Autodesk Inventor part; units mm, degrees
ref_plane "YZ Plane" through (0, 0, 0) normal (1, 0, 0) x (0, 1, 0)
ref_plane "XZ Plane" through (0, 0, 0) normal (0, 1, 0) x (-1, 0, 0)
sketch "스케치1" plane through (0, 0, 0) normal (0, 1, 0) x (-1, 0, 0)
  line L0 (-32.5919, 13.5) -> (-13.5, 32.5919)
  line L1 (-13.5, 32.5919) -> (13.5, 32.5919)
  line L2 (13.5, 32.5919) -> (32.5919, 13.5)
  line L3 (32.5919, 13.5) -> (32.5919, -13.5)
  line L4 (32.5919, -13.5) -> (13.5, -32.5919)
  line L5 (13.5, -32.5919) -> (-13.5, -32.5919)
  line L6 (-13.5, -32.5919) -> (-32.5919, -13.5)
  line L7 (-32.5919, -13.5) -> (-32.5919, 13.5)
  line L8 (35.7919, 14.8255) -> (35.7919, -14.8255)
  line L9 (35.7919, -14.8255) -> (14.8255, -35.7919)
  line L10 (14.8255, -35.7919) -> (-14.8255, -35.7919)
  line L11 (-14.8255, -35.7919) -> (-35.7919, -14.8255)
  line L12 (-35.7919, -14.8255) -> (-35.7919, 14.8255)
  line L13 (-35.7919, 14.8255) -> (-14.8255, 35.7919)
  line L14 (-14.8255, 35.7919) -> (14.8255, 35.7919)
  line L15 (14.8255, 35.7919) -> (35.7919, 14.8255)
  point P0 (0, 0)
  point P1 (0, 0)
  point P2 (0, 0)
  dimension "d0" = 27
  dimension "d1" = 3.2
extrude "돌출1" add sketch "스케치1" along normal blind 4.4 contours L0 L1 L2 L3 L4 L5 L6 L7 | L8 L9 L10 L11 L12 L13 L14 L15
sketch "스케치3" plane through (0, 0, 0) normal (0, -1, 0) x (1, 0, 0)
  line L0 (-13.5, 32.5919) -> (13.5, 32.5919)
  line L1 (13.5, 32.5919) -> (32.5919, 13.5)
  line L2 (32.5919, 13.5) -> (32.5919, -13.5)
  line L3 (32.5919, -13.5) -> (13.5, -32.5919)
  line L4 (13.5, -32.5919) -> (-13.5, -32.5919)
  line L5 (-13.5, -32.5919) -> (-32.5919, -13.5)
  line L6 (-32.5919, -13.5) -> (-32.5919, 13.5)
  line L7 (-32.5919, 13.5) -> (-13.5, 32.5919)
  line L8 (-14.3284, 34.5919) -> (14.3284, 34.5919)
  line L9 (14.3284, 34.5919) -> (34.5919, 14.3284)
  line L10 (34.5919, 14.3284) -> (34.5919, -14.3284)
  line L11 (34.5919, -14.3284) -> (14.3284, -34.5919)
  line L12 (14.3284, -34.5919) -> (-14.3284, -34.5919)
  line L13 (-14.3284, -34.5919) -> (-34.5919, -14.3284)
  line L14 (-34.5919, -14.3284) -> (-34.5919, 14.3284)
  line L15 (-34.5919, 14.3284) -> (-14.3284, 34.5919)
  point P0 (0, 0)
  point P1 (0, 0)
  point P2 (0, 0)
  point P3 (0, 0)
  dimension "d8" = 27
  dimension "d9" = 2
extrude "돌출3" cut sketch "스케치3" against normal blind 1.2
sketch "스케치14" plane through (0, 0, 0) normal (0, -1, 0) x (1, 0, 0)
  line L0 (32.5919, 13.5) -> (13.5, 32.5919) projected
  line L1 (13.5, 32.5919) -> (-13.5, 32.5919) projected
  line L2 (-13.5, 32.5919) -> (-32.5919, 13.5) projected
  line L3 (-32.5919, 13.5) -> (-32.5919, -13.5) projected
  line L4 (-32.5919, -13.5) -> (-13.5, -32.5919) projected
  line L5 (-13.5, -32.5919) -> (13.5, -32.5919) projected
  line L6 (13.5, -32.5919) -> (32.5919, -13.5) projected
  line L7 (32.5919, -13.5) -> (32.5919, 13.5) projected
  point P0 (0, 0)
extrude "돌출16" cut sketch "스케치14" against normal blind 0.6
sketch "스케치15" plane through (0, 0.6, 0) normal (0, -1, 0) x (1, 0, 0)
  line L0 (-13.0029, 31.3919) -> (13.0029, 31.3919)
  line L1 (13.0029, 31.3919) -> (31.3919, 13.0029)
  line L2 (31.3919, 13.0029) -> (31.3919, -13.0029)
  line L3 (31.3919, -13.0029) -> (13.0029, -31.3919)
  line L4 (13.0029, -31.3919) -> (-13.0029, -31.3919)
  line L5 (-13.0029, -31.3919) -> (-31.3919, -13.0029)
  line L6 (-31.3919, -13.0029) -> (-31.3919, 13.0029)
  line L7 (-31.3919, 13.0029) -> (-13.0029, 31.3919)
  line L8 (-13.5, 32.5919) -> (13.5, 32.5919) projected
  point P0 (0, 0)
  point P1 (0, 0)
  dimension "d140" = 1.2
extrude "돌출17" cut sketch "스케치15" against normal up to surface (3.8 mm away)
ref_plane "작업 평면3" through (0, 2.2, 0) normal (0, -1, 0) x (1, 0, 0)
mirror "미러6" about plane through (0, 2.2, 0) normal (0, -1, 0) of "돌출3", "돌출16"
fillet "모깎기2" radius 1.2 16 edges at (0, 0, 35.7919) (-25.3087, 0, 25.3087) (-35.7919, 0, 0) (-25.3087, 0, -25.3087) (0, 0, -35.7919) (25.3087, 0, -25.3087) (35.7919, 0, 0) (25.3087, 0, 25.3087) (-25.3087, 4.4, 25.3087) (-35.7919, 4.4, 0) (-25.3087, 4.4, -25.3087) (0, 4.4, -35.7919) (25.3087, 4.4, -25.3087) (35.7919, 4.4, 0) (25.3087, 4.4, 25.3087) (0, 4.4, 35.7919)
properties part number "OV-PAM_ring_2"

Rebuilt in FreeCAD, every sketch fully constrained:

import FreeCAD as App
import Part
import Sketcher
from FreeCAD import Vector
Q = App.Units.Quantity


def edges_at(feature, points):
    """Names of the edges that pass closest to the given points."""
    edges = feature.Shape.Edges
    near = lambda p: min(range(len(edges)), key=lambda i: edges[i].distToShape(Part.Vertex(*p))[0])
    return sorted({f"Edge{near(p) + 1}" for p in points})


def add_polygon(sketch, points):
    """Adds a closed chain of lines whose ends are joined by coincident constraints."""
    first, n = sketch.GeometryCount, len(points)
    for a, b in zip(points, points[1:] + points[:1]):
        sketch.addGeometry(Part.LineSegment(App.Vector(*a, 0), App.Vector(*b, 0)), False)
    for i in range(n):
        sketch.addConstraint(Sketcher.Constraint("Coincident", first + i, 2, first + (i + 1) % n, 1))

doc = App.newDocument("Part")
body = doc.addObject("PartDesign::Body", "Body")

# Sketch on XZ plane
sketch1 = body.newObject("Sketcher::SketchObject", "Sketch")
sketch1.AttachmentSupport = (doc.getObject("XZ_Plane"), [""])
sketch1.MapMode = "FlatFace"
add_polygon(sketch1, [(-36, -15), (-36, 15), (-15, 36), (15, 36), (36, 15), (36, -15), (15, -36), (-15, -36)])  # lines 0-7
sketch1.addConstraint(Sketcher.Constraint("Vertical", 0))
sketch1.addConstraint(Sketcher.Constraint("Horizontal", 2))
sketch1.addConstraint(Sketcher.Constraint("Vertical", 4))
sketch1.addConstraint(Sketcher.Constraint("Horizontal", 6))
sketch1.addConstraint(Sketcher.Constraint("Symmetric", 0, 2, 4, 2, -1, 1))
sketch1.addConstraint(Sketcher.Constraint("Symmetric", 1, 2, 5, 2, -1, 1))
sketch1.addConstraint(Sketcher.Constraint("Perpendicular", 1, 3))
sketch1.addConstraint(Sketcher.Constraint("Perpendicular", 5, 7))
sketch1.addConstraint(Sketcher.Constraint("Horizontal", 0, 2, 3, 2))
sketch1.addConstraint(Sketcher.Constraint("Horizontal", 4, 2, 7, 2))
sketch1.addConstraint(Sketcher.Constraint("Vertical", 2, 2, 5, 2))
sketch1.addConstraint(Sketcher.Constraint("Equal", 6, 0))
sketch1.addConstraint(Sketcher.Constraint("DistanceX", 2, 1, 2, 2, Q("29.651 mm")))
sketch1.addConstraint(Sketcher.Constraint("Distance", 1, Q("29.651 mm")))
pad1 = body.newObject("PartDesign::Pad", "Pad")
pad1.Profile = sketch1
pad1.Length = 4.4
pad1.Reversed = True

# Sketch on XZ plane
sketch2 = body.newObject("Sketcher::SketchObject", "Sketch001")
sketch2.AttachmentSupport = (doc.getObject("XZ_Plane"), [""])
sketch2.MapMode = "FlatFace"
add_polygon(sketch2, [(14, 35), (-14, 35), (-35, 14), (-35, -14), (-14, -35), (14, -35), (35, -14), (35, 14)])  # lines 0-7
add_polygon(sketch2, [(-33, 14), (-14, 33), (14, 33), (33, 14), (33, -14), (14, -33), (-14, -33), (-33, -14)])  # lines 8-15
sketch2.addConstraint(Sketcher.Constraint("Horizontal", 0))
sketch2.addConstraint(Sketcher.Constraint("Vertical", 2))
sketch2.addConstraint(Sketcher.Constraint("Horizontal", 4))
sketch2.addConstraint(Sketcher.Constraint("Vertical", 6))
sketch2.addConstraint(Sketcher.Constraint("Horizontal", 9))
sketch2.addConstraint(Sketcher.Constraint("Vertical", 11))
sketch2.addConstraint(Sketcher.Constraint("Horizontal", 13))
sketch2.addConstraint(Sketcher.Constraint("Vertical", 15))
sketch2.addConstraint(Sketcher.Constraint("Symmetric", 0, 2, 4, 2, -1, 1))
sketch2.addConstraint(Sketcher.Constraint("Symmetric", 1, 2, 5, 2, -1, 1))
sketch2.addConstraint(Sketcher.Constraint("Symmetric", 8, 2, 12, 2, -1, 1))
sketch2.addConstraint(Sketcher.Constraint("Symmetric", 10, 2, 14, 2, -1, 1))
sketch2.addConstraint(Sketcher.Constraint("Perpendicular", 1, 3))
sketch2.addConstraint(Sketcher.Constraint("Perpendicular", 5, 7))
sketch2.addConstraint(Sketcher.Constraint("Perpendicular", 7, 8))
sketch2.addConstraint(Sketcher.Constraint("Perpendicular", 8, 10))
sketch2.addConstraint(Sketcher.Constraint("Perpendicular", 10, 12))
sketch2.addConstraint(Sketcher.Constraint("Perpendicular", 12, 14))
sketch2.addConstraint(Sketcher.Constraint("Horizontal", 2, 2, 5, 2))
sketch2.addConstraint(Sketcher.Constraint("Horizontal", 1, 2, 6, 2))
sketch2.addConstraint(Sketcher.Constraint("Horizontal", 11, 2, 14, 2))
sketch2.addConstraint(Sketcher.Constraint("Vertical", 0, 2, 3, 2))
sketch2.addConstraint(Sketcher.Constraint("Equal", 4, 2))
sketch2.addConstraint(Sketcher.Constraint("Equal", 13, 11))
sketch2.addConstraint(Sketcher.Constraint("DistanceX", 9, 1, 9, 2, Q("27 mm")))
sketch2.addConstraint(Sketcher.Constraint("Distance", 8, Q("27 mm")))
sketch2.addConstraint(Sketcher.Constraint("DistanceY", 8, 2, 0, 2, Q("2 mm")))
sketch2.addConstraint(Sketcher.Constraint("Distance", 1, Q("28.657 mm")))
pocket1 = body.newObject("PartDesign::Pocket", "Pocket")
pocket1.Profile = sketch2
pocket1.Length = 1.2

# Sketch on XZ plane
sketch3 = body.newObject("Sketcher::SketchObject", "Sketch002")
sketch3.AttachmentSupport = (doc.getObject("XZ_Plane"), [""])
sketch3.MapMode = "FlatFace"
add_polygon(sketch3, [(33, -14), (33, 14), (14, 33), (-14, 33), (-33, 14), (-33, -14), (-14, -33), (14, -33)])  # lines 0-7
sketch3.addConstraint(Sketcher.Constraint("Vertical", 0))
sketch3.addConstraint(Sketcher.Constraint("Horizontal", 2))
sketch3.addConstraint(Sketcher.Constraint("Vertical", 4))
sketch3.addConstraint(Sketcher.Constraint("Horizontal", 6))
sketch3.addConstraint(Sketcher.Constraint("Symmetric", 0, 2, 4, 2, -1, 1))
sketch3.addConstraint(Sketcher.Constraint("Symmetric", 1, 2, 5, 2, -1, 1))
sketch3.addConstraint(Sketcher.Constraint("Perpendicular", 1, 3))
sketch3.addConstraint(Sketcher.Constraint("Perpendicular", 5, 7))
sketch3.addConstraint(Sketcher.Constraint("Horizontal", 0, 2, 3, 2))
sketch3.addConstraint(Sketcher.Constraint("Horizontal", 4, 2, 7, 2))
sketch3.addConstraint(Sketcher.Constraint("Vertical", 2, 2, 5, 2))
sketch3.addConstraint(Sketcher.Constraint("Equal", 6, 0))
sketch3.addConstraint(Sketcher.Constraint("DistanceX", 2, 2, 2, 1, Q("27 mm")))
sketch3.addConstraint(Sketcher.Constraint("Distance", 1, Q("27 mm")))
pocket2 = body.newObject("PartDesign::Pocket", "Pocket001")
pocket2.Profile = sketch3
pocket2.Length = 0.6

# Sketch on XZ plane
sketch4 = body.newObject("Sketcher::SketchObject", "Sketch003")
sketch4.AttachmentSupport = (doc.getObject("XZ_Plane"), [""])
sketch4.MapMode = "FlatFace"
sketch4.AttachmentOffset = App.Placement(Vector(0, 0, -0.6), App.Rotation())
add_polygon(sketch4, [(13, 31), (-13, 31), (-31, 13), (-31, -13), (-13, -31), (13, -31), (31, -13), (31, 13)])  # lines 0-7
sketch4.addConstraint(Sketcher.Constraint("Horizontal", 0))
sketch4.addConstraint(Sketcher.Constraint("Vertical", 2))
sketch4.addConstraint(Sketcher.Constraint("Horizontal", 4))
sketch4.addConstraint(Sketcher.Constraint("Vertical", 6))
sketch4.addConstraint(Sketcher.Constraint("Symmetric", 0, 2, 4, 2, -1, 1))
sketch4.addConstraint(Sketcher.Constraint("Symmetric", 1, 2, 5, 2, -1, 1))
sketch4.addConstraint(Sketcher.Constraint("Perpendicular", 1, 3))
sketch4.addConstraint(Sketcher.Constraint("Perpendicular", 5, 7))
sketch4.addConstraint(Sketcher.Constraint("Horizontal", 2, 2, 5, 2))
sketch4.addConstraint(Sketcher.Constraint("Horizontal", 1, 2, 6, 2))
sketch4.addConstraint(Sketcher.Constraint("Vertical", 0, 2, 3, 2))
sketch4.addConstraint(Sketcher.Constraint("Equal", 4, 2))
sketch4.addConstraint(Sketcher.Constraint("Distance", 1, Q("26.006 mm")))
sketch4.addConstraint(Sketcher.Constraint("DistanceX", 0, 2, 0, 1, Q("26.0058 mm")))
pocket3 = body.newObject("PartDesign::Pocket", "Pocket002")
pocket3.Profile = sketch4
pocket3.Length = 3.8
doc.recompute()

datumplane = body.newObject("PartDesign::Plane", "DatumPlane")
datumplane.AttachmentSupport = (doc.getObject("XZ_Plane"), [""])
datumplane.MapMode = "FlatFace"
datumplane.AttachmentOffset = App.Placement(Vector(0, 0, -2.2), App.Rotation())
mirrored = body.newObject("PartDesign::Mirrored", "Mirrored")
mirrored.Originals = [pocket1, pocket2]
mirrored.MirrorPlane = (datumplane, [""])
body.Tip = mirrored
doc.recompute()

fillet = body.newObject("PartDesign::Fillet", "Fillet")
fillet.Base = (mirrored, edges_at(mirrored, [
    (0, 0, 35.792),
    (-25.309, 0, 25.309),
    (-35.792, 0, 0),
    (-25.309, 0, -25.309),
    (0, 0, -35.792),
    (25.309, 0, -25.309),
    (35.792, 0, 0),
    (25.309, 0, 25.309),
    (-25.309, 4.4, 25.309),
    (-35.792, 4.4, 0),
    (-25.309, 4.4, -25.309),
    (0, 4.4, -35.792),
    (25.309, 4.4, -25.309),
    (35.792, 4.4, 0),
    (25.309, 4.4, 25.309),
    (0, 4.4, 35.792),
]))
fillet.Radius = 1.2

doc.recompute()
